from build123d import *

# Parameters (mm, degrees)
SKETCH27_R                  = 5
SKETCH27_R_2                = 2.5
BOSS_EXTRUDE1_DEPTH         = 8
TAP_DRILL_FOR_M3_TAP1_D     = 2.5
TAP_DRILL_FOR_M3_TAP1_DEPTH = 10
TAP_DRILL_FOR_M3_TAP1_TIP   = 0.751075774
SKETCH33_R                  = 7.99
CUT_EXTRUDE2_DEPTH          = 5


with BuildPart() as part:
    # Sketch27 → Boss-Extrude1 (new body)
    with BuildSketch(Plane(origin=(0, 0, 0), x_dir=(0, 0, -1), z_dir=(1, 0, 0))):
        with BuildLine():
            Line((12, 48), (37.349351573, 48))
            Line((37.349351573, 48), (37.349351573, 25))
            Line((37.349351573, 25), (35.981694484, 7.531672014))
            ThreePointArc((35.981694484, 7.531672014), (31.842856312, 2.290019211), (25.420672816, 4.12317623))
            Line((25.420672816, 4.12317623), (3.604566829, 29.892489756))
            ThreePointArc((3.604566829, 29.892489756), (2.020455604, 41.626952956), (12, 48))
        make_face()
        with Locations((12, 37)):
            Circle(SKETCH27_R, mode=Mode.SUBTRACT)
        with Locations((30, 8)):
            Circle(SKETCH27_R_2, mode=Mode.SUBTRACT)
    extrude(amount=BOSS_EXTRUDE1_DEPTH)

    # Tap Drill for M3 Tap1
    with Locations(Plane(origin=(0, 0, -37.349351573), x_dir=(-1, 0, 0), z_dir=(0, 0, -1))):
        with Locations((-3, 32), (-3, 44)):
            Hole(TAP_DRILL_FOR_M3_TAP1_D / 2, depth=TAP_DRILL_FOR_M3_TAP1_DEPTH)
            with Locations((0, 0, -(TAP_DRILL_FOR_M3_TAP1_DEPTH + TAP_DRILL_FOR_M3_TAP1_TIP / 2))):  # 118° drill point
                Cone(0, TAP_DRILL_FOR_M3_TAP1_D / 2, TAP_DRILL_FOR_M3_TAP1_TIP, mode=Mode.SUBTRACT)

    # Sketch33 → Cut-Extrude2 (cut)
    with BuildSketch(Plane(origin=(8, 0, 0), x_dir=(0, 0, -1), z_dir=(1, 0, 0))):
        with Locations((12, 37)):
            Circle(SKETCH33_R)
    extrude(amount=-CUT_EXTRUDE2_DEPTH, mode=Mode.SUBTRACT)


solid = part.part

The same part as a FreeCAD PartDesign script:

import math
import FreeCAD as App
import Part
import Sketcher

V = App.Vector
Q = App.Units.Quantity

doc = App.newDocument("Part")
params = doc.addObject("Spreadsheet::Sheet", "Params")
for row, (alias, value) in enumerate([
    ("sketch1_diameter", "5 mm"),
    ("sketch1_diameter2", "10 mm"),
    ("sketch1_radius", "11 mm"),
    ("sketch1_radius2", "6 mm"),
    ("sketch1_width", "23 mm"),
    ("pad1_length", "8 mm"),
    ("sketch2_diameter", "2.5 mm"),
    ("hole_diameter", "2.5 mm"),
    ("hole_depth", "10 mm"),
    ("sketch3_diameter", "15.98 mm"),
    ("pocket1_length", "5 mm"),
], start=1):
    params.set(f"A{row}", alias)
    params.set(f"B{row}", "=" + value)
    params.setAlias(f"B{row}", alias)

body = doc.addObject("PartDesign::Body", "Body")

sketch1 = body.newObject("Sketcher::SketchObject", "Sketch")
sketch1.AttachmentSupport = (doc.getObject("YZ_Plane"), [""])
sketch1.MapMode = "FlatFace"
sketch1.addGeometry(Part.LineSegment(V(48, -37.3, 0), V(48, -12, 0)), False)
sketch1.addGeometry(Part.ArcOfCircle(Part.Circle(V(37, -12, 0), V(0, 0, 1), 11), math.radians(0), math.radians(130)), False)
sketch1.addGeometry(Part.LineSegment(V(29.9, -3.6, 0), V(4.1, -25.4, 0)), False)
sketch1.addGeometry(Part.ArcOfCircle(Part.Circle(V(8, -30, 0), V(0, 0, 1), 6), math.radians(130), math.radians(266)), False)
sketch1.addGeometry(Part.LineSegment(V(7.5, -36, 0), V(25, -37.3, 0)), False)
sketch1.addGeometry(Part.LineSegment(V(25, -37.3, 0), V(48, -37.3, 0)), False)
sketch1.addGeometry(Part.Circle(V(8, -30, 0), V(0, 0, 1), 2.5), False)
sketch1.addGeometry(Part.Circle(V(37, -12, 0), V(0, 0, 1), 5), False)
sketch1.addConstraint(Sketcher.Constraint("Tangent", 0, 2, 1, 1))
sketch1.addConstraint(Sketcher.Constraint("Tangent", 1, 2, 2, 1))
sketch1.addConstraint(Sketcher.Constraint("Tangent", 2, 2, 3, 1))
sketch1.addConstraint(Sketcher.Constraint("Tangent", 3, 2, 4, 1))
sketch1.addConstraint(Sketcher.Constraint("Coincident", 4, 2, 5, 1))
sketch1.addConstraint(Sketcher.Constraint("Coincident", 5, 2, 0, 1))
sketch1.addConstraint(Sketcher.Constraint("Vertical", 0))
sketch1.addConstraint(Sketcher.Constraint("Horizontal", 5))
sketch1.addConstraint(Sketcher.Constraint("Coincident", 6, 3, 3, 3))
sketch1.addConstraint(Sketcher.Constraint("Coincident", 7, 3, 1, 3))
sketch1.addConstraint(Sketcher.Constraint("Diameter", 6, Q("5 mm")))
sketch1.addConstraint(Sketcher.Constraint("Diameter", 7, Q("10 mm")))
sketch1.addConstraint(Sketcher.Constraint("Radius", 1, Q("11 mm")))
sketch1.addConstraint(Sketcher.Constraint("Radius", 3, Q("6 mm")))
sketch1.addConstraint(Sketcher.Constraint("DistanceX", 5, 1, 5, 2, Q("23 mm")))
sketch1.addConstraint(Sketcher.Constraint("DistanceX", -1, 1, 1, 3, Q("37 mm")))
sketch1.addConstraint(Sketcher.Constraint("DistanceY", 1, 3, -1, 1, Q("12 mm")))
sketch1.addConstraint(Sketcher.Constraint("DistanceX", -1, 1, 3, 3, Q("8 mm")))
sketch1.addConstraint(Sketcher.Constraint("DistanceY", 3, 3, -1, 1, Q("30 mm")))
sketch1.addConstraint(Sketcher.Constraint("DistanceY", 0, 1, 0, 2, Q("25.349352 mm")))
sketch1.setExpression("Constraints[10]", "Params.sketch1_diameter")
sketch1.setExpression("Constraints[11]", "Params.sketch1_diameter2")
sketch1.setExpression("Constraints[12]", "Params.sketch1_radius")
sketch1.setExpression("Constraints[13]", "Params.sketch1_radius2")
sketch1.setExpression("Constraints[14]", "Params.sketch1_width")
pad1 = body.newObject("PartDesign::Pad", "Pad")
pad1.Profile = sketch1
pad1.setExpression("Length", "Params.pad1_length")

sketch2 = body.newObject("Sketcher::SketchObject", "Sketch001")
sketch2.AttachmentSupport = (doc.getObject("XY_Plane"), [""])
sketch2.MapMode = "FlatFace"
sketch2.AttachmentOffset = App.Placement(V(0, 0, -37.349352), App.Rotation())
sketch2.addGeometry(Part.Circle(V(3, 32, 0), V(0, 0, 1), 1.2), False)
sketch2.addGeometry(Part.Circle(V(3, 44, 0), V(0, 0, 1), 1.2), False)
sketch2.addConstraint(Sketcher.Constraint("Equal", 0, 1))
sketch2.addConstraint(Sketcher.Constraint("Vertical", 0, 3, 1, 3))
sketch2.addConstraint(Sketcher.Constraint("Diameter", 0, Q("2.5 mm")))
sketch2.addConstraint(Sketcher.Constraint("DistanceX", -1, 1, 0, 3, Q("3 mm")))
sketch2.addConstraint(Sketcher.Constraint("DistanceY", -1, 1, 0, 3, Q("32 mm")))
sketch2.addConstraint(Sketcher.Constraint("DistanceY", -1, 1, 1, 3, Q("44 mm")))
sketch2.setExpression("Constraints[2]", "Params.sketch2_diameter")
doc.recompute()
hole = body.newObject("PartDesign::Hole", "Hole")
hole.Profile = sketch2
hole.ThreadType = "None"
hole.setExpression("Diameter", "Params.hole_diameter")
hole.DepthType = "Dimension"
hole.setExpression("Depth", "Params.hole_depth")
hole.DrillPoint = "Angled"
hole.DrillPointAngle = 118
hole.Reversed = True

sketch3 = body.newObject("Sketcher::SketchObject", "Sketch002")
sketch3.AttachmentSupport = (doc.getObject("YZ_Plane"), [""])
sketch3.MapMode = "FlatFace"
sketch3.AttachmentOffset = App.Placement(V(0, 0, 8), App.Rotation())
sketch3.addGeometry(Part.Circle(V(37, -12, 0), V(0, 0, 1), 8), False)
sketch3.addConstraint(Sketcher.Constraint("Diameter", 0, Q("15.98 mm")))
sketch3.addConstraint(Sketcher.Constraint("DistanceX", -1, 1, 0, 3, Q("37 mm")))
sketch3.addConstraint(Sketcher.Constraint("DistanceY", 0, 3, -1, 1, Q("12 mm")))
sketch3.setExpression("Constraints[0]", "Params.sketch3_diameter")
pocket1 = body.newObject("PartDesign::Pocket", "Pocket")
pocket1.Profile = sketch3
pocket1.setExpression("Length", "Params.pocket1_length")

doc.recompute()
